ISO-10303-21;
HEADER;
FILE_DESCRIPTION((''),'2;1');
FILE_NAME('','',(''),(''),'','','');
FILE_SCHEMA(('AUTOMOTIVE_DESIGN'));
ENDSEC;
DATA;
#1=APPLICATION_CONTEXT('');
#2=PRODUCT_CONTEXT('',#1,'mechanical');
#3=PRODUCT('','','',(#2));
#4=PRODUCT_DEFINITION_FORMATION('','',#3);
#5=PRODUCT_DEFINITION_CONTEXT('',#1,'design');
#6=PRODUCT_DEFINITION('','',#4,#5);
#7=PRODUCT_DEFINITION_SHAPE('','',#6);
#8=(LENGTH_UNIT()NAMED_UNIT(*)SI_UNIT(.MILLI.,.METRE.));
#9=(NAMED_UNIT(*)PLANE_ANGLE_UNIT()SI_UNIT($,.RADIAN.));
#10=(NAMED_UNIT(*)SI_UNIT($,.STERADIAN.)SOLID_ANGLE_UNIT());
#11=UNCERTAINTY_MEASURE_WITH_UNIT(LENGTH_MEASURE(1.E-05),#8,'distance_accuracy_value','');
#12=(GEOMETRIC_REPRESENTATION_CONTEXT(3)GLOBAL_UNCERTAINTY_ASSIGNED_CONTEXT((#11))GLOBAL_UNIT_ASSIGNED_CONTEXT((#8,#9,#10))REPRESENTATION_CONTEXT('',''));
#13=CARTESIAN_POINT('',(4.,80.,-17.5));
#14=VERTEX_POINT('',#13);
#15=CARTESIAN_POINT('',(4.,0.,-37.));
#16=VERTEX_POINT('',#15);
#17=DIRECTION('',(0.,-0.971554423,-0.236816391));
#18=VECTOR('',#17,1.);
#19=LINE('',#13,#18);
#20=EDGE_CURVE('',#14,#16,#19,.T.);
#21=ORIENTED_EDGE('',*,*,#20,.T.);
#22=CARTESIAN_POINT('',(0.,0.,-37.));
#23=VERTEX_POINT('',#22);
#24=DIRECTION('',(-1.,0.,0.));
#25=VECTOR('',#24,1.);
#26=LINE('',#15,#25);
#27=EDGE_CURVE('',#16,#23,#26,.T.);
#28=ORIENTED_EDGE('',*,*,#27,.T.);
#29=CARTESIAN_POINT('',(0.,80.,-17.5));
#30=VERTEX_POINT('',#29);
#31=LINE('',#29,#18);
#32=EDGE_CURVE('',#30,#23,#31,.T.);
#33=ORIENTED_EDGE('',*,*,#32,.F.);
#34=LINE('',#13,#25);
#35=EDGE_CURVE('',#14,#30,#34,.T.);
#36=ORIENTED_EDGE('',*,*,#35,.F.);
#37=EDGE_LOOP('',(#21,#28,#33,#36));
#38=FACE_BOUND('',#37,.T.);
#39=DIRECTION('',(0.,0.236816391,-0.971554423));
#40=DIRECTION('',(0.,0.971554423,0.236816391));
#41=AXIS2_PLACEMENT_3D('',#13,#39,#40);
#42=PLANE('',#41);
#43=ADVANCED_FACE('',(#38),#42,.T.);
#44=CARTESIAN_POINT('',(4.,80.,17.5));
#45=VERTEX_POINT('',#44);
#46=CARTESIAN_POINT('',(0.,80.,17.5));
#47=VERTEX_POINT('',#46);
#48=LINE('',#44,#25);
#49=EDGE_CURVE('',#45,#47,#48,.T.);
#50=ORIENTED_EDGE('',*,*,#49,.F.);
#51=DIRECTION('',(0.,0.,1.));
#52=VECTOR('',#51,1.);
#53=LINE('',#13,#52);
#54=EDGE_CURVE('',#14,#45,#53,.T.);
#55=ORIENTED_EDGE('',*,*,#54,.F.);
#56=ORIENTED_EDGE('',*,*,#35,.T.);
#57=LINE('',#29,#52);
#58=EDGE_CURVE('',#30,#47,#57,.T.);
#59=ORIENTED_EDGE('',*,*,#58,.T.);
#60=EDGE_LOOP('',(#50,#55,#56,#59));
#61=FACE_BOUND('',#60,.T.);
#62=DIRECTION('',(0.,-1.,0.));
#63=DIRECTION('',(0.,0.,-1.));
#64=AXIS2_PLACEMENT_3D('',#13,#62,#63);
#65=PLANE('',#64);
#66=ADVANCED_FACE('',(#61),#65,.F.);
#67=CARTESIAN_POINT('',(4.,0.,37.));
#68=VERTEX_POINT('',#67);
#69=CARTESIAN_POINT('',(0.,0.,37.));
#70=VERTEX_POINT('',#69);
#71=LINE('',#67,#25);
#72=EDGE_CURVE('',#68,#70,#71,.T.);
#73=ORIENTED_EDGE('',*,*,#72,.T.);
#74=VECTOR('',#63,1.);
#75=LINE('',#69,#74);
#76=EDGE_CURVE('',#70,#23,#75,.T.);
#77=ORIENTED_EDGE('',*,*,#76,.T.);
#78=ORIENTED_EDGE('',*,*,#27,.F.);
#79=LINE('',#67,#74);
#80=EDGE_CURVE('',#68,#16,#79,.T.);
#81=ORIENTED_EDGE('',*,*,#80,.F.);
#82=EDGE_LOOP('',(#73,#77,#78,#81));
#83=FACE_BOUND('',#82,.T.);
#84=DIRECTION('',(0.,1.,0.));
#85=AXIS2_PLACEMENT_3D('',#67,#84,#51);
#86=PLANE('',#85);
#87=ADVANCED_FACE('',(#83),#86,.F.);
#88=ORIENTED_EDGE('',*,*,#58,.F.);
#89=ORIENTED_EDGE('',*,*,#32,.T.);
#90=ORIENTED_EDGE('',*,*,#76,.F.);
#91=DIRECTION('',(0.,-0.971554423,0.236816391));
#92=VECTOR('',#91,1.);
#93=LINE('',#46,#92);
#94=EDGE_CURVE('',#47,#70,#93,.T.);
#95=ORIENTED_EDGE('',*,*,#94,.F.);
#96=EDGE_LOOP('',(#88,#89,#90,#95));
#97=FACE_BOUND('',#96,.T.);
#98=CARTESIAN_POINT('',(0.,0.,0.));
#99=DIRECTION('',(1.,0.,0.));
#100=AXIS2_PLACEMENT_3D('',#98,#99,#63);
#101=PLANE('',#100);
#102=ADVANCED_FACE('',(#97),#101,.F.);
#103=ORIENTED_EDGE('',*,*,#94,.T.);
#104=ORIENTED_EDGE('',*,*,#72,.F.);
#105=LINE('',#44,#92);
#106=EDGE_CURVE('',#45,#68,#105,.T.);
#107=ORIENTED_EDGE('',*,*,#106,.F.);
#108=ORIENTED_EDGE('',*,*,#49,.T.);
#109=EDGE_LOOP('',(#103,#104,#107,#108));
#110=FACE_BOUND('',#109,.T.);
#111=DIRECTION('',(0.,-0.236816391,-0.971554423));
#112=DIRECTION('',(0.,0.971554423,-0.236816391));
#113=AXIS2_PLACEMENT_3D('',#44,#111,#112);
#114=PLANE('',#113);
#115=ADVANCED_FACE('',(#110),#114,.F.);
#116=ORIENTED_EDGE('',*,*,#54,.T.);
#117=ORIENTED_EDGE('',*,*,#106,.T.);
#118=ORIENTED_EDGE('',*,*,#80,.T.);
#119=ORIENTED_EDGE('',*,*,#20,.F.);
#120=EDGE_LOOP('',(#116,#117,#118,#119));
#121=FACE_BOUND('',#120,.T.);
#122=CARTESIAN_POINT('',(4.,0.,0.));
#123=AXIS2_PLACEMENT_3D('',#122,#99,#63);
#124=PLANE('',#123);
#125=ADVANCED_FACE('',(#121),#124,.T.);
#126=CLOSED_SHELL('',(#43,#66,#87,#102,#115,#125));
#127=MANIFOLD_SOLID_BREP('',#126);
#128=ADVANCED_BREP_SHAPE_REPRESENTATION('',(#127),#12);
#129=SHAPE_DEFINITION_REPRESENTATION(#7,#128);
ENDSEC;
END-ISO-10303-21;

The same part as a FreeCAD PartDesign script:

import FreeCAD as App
import Part
import Sketcher
from FreeCAD import Vector
Q = App.Units.Quantity

doc = App.newDocument("Part")
body = doc.addObject("PartDesign::Body", "Body")

# Sketch on YZ plane
sketch1 = body.newObject("Sketcher::SketchObject", "Sketch")
sketch1.AttachmentSupport = (doc.getObject("YZ_Plane"), [""])
sketch1.MapMode = "FlatFace"
sketch1.addGeometry([
    Part.LineSegment(Vector(80, -18, 0), Vector(80, 18, 0)),
    Part.LineSegment(Vector(80, 18, 0), Vector(0, 37, 0)),
    Part.LineSegment(Vector(0, 37, 0), Vector(0, -37, 0)),
    Part.LineSegment(Vector(0, -37, 0), Vector(80, -18, 0)),
], False)
sketch1.addConstraint([
    Sketcher.Constraint("Coincident", 0, 2, 1, 1),
    Sketcher.Constraint("Coincident", 1, 2, 2, 1),
    Sketcher.Constraint("Coincident", 2, 2, 3, 1),
    Sketcher.Constraint("Coincident", 3, 2, 0, 1),
    Sketcher.Constraint("Vertical", 0),
    Sketcher.Constraint("Vertical", 2),
    Sketcher.Constraint("Symmetric", 1, 2, 2, 2, -1, 1),
    Sketcher.Constraint("Equal", 1, 3),
    Sketcher.Constraint("DistanceY", 0, 1, 0, 2, Q("35 mm")),
    Sketcher.Constraint("DistanceY", 2, 2, 2, 1, Q("74 mm")),
    Sketcher.Constraint("DistanceX", -1, 1, 0, 2, Q("80 mm")),
])
pad1 = body.newObject("PartDesign::Pad", "Pad")
pad1.Profile = sketch1
pad1.Length = 4

doc.recompute()
